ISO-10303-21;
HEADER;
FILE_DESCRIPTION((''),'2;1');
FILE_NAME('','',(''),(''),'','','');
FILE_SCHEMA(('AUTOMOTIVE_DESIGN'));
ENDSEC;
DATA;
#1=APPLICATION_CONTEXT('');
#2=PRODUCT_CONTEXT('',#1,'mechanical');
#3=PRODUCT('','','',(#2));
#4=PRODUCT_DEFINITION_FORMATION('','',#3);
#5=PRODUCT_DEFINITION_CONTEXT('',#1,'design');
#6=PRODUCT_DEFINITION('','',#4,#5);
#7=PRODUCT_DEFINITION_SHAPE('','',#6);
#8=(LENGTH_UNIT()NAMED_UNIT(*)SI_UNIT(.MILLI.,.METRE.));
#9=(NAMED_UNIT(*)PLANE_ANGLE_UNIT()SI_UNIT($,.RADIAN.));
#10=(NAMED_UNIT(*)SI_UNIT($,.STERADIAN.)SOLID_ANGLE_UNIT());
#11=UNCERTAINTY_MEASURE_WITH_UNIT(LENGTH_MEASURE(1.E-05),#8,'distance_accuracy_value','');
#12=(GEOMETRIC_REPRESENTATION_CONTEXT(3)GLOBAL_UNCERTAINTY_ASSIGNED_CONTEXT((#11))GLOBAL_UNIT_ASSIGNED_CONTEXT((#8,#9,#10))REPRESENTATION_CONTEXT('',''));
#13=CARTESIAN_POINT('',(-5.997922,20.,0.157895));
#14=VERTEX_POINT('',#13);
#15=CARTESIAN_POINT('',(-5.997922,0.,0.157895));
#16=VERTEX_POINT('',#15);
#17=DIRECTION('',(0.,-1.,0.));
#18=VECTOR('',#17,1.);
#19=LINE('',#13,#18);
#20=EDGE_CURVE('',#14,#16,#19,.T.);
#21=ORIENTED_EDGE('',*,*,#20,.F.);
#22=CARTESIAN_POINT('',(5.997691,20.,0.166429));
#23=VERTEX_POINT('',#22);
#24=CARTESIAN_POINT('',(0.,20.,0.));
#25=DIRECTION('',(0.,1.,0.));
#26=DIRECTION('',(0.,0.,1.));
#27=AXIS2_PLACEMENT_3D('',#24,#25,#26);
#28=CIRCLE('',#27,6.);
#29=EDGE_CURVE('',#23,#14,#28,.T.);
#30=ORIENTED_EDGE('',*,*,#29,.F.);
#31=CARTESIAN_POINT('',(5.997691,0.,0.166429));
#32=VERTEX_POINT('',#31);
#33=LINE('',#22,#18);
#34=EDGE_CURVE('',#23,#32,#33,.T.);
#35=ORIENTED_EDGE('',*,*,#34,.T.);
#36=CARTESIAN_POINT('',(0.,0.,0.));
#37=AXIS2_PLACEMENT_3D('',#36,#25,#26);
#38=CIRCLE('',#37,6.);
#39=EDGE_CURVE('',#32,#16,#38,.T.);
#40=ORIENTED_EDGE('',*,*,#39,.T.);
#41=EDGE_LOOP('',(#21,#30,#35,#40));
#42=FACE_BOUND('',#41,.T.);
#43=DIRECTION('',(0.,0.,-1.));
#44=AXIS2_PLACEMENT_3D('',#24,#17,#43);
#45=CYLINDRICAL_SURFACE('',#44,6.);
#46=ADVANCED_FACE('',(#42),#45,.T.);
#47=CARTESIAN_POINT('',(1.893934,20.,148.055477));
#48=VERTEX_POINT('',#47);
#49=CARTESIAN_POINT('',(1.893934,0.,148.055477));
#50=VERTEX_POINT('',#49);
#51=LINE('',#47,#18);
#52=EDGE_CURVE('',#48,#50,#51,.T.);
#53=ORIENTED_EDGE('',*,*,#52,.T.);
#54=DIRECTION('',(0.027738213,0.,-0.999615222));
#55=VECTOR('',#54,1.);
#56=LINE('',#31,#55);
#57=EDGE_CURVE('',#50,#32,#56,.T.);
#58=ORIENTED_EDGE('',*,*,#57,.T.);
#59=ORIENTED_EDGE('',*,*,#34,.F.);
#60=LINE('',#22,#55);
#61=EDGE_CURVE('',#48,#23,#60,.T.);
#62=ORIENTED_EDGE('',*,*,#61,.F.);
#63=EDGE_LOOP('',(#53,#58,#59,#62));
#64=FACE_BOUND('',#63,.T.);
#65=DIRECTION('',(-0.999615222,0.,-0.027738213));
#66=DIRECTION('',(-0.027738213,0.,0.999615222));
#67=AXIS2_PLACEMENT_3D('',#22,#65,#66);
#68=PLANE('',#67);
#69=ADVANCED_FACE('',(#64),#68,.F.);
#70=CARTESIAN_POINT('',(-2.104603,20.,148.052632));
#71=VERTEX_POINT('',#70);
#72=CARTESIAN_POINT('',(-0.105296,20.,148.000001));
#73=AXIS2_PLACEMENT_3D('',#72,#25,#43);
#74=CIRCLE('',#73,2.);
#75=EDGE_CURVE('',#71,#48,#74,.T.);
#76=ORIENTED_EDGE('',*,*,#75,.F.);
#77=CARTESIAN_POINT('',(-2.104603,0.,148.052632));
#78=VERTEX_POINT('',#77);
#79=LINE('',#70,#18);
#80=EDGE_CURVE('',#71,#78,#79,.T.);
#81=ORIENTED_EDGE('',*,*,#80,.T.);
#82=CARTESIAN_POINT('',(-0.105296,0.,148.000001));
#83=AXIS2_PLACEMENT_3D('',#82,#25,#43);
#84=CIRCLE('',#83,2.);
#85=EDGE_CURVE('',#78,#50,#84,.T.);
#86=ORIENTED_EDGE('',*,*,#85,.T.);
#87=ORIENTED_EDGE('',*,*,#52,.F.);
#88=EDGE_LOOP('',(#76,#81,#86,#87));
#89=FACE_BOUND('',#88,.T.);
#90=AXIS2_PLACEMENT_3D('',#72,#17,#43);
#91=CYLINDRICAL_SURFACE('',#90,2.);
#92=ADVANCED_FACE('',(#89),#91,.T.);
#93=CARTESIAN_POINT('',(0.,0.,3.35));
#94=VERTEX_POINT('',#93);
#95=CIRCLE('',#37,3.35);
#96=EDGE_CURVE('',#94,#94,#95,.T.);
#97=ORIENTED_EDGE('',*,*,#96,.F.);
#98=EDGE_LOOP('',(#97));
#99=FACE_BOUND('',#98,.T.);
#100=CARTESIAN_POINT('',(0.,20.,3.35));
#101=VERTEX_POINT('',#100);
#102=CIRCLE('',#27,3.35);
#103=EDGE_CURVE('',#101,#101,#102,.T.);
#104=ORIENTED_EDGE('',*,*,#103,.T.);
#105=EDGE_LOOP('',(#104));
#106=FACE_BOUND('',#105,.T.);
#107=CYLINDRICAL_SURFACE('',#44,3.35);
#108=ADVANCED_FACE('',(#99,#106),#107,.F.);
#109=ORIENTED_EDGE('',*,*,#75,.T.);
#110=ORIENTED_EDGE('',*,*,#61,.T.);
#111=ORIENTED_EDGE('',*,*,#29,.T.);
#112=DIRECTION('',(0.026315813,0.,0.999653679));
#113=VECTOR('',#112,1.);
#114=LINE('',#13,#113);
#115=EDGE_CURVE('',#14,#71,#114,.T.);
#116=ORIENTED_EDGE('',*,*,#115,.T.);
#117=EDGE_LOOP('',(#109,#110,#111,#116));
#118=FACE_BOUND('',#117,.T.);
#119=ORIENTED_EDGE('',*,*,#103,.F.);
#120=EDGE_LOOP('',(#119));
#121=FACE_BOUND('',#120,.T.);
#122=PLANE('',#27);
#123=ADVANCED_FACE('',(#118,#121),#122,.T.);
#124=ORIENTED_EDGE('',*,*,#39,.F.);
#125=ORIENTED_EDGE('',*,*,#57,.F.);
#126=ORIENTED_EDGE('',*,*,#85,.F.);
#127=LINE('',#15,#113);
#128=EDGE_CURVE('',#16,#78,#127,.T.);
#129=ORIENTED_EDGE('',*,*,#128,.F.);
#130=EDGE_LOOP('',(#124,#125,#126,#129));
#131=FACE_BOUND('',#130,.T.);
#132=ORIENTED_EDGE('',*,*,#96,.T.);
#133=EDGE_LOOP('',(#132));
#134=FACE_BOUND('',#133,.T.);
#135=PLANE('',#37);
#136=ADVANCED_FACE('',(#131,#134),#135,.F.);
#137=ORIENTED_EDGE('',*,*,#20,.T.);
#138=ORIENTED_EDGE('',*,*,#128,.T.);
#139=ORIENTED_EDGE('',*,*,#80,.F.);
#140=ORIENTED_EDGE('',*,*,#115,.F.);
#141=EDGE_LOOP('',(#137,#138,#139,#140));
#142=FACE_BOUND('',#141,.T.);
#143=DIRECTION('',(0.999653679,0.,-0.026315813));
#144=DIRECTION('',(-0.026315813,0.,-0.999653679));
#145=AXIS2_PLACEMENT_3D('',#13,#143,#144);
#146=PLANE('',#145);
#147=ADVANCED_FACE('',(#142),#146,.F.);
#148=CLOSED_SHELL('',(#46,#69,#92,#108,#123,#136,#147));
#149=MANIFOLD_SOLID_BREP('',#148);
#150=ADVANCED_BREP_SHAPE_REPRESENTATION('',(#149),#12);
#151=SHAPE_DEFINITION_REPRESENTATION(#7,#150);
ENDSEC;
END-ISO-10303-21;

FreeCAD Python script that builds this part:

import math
import FreeCAD as App
import Part
import Sketcher
from FreeCAD import Vector

doc = App.newDocument("Part")
body = doc.addObject("PartDesign::Body", "Body")

# Sketch on XZ plane
sketch1 = body.newObject("Sketcher::SketchObject", "Sketch")
sketch1.AttachmentSupport = (doc.getObject("XZ_Plane"), [""])
sketch1.MapMode = "FlatFace"
sketch1.addGeometry([
    Part.LineSegment(Vector(-6, 0.2, 0), Vector(-2.1, 148.1, 0)),  # 0
    Part.ArcOfCircle(Part.Circle(Vector(-0.1, 148, 0), Vector(0, 0, 1), 2), math.radians(2), math.radians(178)),  # 1
    Part.LineSegment(Vector(1.9, 148.1, 0), Vector(6, 0.2, 0)),  # 2
    Part.ArcOfCircle(Part.Circle(Vector(0, 0, 0), Vector(0, 0, 1), 6), math.radians(178), math.radians(362)),  # 3
    Part.Circle(Vector(0, 0, 0), Vector(0, 0, 1), 3.4),  # 4
], False)
sketch1.addConstraint([
    Sketcher.Constraint("Tangent", 0, 2, 1, 2),
    Sketcher.Constraint("Tangent", 1, 1, 2, 1),
    Sketcher.Constraint("Tangent", 2, 2, 3, 2),
    Sketcher.Constraint("Tangent", 3, 1, 0, 1),
    Sketcher.Constraint("Coincident", 3, 3, -1, 1),
    Sketcher.Constraint("Coincident", 4, 3, -1, 1),
    Sketcher.Constraint("Radius", 1, 2.0),
    Sketcher.Constraint("Radius", 3, 6.0),
    Sketcher.Constraint("Diameter", 4, 6.7),
    Sketcher.Constraint("DistanceY", -1, 1, 1, 3, 148.000001),
    Sketcher.Constraint("DistanceY", -1, 1, 2, 2, 0.166429),
])
pad1 = body.newObject("PartDesign::Pad", "Pad")
pad1.Profile = sketch1
pad1.Length = 20
pad1.Reversed = True

doc.recompute()
